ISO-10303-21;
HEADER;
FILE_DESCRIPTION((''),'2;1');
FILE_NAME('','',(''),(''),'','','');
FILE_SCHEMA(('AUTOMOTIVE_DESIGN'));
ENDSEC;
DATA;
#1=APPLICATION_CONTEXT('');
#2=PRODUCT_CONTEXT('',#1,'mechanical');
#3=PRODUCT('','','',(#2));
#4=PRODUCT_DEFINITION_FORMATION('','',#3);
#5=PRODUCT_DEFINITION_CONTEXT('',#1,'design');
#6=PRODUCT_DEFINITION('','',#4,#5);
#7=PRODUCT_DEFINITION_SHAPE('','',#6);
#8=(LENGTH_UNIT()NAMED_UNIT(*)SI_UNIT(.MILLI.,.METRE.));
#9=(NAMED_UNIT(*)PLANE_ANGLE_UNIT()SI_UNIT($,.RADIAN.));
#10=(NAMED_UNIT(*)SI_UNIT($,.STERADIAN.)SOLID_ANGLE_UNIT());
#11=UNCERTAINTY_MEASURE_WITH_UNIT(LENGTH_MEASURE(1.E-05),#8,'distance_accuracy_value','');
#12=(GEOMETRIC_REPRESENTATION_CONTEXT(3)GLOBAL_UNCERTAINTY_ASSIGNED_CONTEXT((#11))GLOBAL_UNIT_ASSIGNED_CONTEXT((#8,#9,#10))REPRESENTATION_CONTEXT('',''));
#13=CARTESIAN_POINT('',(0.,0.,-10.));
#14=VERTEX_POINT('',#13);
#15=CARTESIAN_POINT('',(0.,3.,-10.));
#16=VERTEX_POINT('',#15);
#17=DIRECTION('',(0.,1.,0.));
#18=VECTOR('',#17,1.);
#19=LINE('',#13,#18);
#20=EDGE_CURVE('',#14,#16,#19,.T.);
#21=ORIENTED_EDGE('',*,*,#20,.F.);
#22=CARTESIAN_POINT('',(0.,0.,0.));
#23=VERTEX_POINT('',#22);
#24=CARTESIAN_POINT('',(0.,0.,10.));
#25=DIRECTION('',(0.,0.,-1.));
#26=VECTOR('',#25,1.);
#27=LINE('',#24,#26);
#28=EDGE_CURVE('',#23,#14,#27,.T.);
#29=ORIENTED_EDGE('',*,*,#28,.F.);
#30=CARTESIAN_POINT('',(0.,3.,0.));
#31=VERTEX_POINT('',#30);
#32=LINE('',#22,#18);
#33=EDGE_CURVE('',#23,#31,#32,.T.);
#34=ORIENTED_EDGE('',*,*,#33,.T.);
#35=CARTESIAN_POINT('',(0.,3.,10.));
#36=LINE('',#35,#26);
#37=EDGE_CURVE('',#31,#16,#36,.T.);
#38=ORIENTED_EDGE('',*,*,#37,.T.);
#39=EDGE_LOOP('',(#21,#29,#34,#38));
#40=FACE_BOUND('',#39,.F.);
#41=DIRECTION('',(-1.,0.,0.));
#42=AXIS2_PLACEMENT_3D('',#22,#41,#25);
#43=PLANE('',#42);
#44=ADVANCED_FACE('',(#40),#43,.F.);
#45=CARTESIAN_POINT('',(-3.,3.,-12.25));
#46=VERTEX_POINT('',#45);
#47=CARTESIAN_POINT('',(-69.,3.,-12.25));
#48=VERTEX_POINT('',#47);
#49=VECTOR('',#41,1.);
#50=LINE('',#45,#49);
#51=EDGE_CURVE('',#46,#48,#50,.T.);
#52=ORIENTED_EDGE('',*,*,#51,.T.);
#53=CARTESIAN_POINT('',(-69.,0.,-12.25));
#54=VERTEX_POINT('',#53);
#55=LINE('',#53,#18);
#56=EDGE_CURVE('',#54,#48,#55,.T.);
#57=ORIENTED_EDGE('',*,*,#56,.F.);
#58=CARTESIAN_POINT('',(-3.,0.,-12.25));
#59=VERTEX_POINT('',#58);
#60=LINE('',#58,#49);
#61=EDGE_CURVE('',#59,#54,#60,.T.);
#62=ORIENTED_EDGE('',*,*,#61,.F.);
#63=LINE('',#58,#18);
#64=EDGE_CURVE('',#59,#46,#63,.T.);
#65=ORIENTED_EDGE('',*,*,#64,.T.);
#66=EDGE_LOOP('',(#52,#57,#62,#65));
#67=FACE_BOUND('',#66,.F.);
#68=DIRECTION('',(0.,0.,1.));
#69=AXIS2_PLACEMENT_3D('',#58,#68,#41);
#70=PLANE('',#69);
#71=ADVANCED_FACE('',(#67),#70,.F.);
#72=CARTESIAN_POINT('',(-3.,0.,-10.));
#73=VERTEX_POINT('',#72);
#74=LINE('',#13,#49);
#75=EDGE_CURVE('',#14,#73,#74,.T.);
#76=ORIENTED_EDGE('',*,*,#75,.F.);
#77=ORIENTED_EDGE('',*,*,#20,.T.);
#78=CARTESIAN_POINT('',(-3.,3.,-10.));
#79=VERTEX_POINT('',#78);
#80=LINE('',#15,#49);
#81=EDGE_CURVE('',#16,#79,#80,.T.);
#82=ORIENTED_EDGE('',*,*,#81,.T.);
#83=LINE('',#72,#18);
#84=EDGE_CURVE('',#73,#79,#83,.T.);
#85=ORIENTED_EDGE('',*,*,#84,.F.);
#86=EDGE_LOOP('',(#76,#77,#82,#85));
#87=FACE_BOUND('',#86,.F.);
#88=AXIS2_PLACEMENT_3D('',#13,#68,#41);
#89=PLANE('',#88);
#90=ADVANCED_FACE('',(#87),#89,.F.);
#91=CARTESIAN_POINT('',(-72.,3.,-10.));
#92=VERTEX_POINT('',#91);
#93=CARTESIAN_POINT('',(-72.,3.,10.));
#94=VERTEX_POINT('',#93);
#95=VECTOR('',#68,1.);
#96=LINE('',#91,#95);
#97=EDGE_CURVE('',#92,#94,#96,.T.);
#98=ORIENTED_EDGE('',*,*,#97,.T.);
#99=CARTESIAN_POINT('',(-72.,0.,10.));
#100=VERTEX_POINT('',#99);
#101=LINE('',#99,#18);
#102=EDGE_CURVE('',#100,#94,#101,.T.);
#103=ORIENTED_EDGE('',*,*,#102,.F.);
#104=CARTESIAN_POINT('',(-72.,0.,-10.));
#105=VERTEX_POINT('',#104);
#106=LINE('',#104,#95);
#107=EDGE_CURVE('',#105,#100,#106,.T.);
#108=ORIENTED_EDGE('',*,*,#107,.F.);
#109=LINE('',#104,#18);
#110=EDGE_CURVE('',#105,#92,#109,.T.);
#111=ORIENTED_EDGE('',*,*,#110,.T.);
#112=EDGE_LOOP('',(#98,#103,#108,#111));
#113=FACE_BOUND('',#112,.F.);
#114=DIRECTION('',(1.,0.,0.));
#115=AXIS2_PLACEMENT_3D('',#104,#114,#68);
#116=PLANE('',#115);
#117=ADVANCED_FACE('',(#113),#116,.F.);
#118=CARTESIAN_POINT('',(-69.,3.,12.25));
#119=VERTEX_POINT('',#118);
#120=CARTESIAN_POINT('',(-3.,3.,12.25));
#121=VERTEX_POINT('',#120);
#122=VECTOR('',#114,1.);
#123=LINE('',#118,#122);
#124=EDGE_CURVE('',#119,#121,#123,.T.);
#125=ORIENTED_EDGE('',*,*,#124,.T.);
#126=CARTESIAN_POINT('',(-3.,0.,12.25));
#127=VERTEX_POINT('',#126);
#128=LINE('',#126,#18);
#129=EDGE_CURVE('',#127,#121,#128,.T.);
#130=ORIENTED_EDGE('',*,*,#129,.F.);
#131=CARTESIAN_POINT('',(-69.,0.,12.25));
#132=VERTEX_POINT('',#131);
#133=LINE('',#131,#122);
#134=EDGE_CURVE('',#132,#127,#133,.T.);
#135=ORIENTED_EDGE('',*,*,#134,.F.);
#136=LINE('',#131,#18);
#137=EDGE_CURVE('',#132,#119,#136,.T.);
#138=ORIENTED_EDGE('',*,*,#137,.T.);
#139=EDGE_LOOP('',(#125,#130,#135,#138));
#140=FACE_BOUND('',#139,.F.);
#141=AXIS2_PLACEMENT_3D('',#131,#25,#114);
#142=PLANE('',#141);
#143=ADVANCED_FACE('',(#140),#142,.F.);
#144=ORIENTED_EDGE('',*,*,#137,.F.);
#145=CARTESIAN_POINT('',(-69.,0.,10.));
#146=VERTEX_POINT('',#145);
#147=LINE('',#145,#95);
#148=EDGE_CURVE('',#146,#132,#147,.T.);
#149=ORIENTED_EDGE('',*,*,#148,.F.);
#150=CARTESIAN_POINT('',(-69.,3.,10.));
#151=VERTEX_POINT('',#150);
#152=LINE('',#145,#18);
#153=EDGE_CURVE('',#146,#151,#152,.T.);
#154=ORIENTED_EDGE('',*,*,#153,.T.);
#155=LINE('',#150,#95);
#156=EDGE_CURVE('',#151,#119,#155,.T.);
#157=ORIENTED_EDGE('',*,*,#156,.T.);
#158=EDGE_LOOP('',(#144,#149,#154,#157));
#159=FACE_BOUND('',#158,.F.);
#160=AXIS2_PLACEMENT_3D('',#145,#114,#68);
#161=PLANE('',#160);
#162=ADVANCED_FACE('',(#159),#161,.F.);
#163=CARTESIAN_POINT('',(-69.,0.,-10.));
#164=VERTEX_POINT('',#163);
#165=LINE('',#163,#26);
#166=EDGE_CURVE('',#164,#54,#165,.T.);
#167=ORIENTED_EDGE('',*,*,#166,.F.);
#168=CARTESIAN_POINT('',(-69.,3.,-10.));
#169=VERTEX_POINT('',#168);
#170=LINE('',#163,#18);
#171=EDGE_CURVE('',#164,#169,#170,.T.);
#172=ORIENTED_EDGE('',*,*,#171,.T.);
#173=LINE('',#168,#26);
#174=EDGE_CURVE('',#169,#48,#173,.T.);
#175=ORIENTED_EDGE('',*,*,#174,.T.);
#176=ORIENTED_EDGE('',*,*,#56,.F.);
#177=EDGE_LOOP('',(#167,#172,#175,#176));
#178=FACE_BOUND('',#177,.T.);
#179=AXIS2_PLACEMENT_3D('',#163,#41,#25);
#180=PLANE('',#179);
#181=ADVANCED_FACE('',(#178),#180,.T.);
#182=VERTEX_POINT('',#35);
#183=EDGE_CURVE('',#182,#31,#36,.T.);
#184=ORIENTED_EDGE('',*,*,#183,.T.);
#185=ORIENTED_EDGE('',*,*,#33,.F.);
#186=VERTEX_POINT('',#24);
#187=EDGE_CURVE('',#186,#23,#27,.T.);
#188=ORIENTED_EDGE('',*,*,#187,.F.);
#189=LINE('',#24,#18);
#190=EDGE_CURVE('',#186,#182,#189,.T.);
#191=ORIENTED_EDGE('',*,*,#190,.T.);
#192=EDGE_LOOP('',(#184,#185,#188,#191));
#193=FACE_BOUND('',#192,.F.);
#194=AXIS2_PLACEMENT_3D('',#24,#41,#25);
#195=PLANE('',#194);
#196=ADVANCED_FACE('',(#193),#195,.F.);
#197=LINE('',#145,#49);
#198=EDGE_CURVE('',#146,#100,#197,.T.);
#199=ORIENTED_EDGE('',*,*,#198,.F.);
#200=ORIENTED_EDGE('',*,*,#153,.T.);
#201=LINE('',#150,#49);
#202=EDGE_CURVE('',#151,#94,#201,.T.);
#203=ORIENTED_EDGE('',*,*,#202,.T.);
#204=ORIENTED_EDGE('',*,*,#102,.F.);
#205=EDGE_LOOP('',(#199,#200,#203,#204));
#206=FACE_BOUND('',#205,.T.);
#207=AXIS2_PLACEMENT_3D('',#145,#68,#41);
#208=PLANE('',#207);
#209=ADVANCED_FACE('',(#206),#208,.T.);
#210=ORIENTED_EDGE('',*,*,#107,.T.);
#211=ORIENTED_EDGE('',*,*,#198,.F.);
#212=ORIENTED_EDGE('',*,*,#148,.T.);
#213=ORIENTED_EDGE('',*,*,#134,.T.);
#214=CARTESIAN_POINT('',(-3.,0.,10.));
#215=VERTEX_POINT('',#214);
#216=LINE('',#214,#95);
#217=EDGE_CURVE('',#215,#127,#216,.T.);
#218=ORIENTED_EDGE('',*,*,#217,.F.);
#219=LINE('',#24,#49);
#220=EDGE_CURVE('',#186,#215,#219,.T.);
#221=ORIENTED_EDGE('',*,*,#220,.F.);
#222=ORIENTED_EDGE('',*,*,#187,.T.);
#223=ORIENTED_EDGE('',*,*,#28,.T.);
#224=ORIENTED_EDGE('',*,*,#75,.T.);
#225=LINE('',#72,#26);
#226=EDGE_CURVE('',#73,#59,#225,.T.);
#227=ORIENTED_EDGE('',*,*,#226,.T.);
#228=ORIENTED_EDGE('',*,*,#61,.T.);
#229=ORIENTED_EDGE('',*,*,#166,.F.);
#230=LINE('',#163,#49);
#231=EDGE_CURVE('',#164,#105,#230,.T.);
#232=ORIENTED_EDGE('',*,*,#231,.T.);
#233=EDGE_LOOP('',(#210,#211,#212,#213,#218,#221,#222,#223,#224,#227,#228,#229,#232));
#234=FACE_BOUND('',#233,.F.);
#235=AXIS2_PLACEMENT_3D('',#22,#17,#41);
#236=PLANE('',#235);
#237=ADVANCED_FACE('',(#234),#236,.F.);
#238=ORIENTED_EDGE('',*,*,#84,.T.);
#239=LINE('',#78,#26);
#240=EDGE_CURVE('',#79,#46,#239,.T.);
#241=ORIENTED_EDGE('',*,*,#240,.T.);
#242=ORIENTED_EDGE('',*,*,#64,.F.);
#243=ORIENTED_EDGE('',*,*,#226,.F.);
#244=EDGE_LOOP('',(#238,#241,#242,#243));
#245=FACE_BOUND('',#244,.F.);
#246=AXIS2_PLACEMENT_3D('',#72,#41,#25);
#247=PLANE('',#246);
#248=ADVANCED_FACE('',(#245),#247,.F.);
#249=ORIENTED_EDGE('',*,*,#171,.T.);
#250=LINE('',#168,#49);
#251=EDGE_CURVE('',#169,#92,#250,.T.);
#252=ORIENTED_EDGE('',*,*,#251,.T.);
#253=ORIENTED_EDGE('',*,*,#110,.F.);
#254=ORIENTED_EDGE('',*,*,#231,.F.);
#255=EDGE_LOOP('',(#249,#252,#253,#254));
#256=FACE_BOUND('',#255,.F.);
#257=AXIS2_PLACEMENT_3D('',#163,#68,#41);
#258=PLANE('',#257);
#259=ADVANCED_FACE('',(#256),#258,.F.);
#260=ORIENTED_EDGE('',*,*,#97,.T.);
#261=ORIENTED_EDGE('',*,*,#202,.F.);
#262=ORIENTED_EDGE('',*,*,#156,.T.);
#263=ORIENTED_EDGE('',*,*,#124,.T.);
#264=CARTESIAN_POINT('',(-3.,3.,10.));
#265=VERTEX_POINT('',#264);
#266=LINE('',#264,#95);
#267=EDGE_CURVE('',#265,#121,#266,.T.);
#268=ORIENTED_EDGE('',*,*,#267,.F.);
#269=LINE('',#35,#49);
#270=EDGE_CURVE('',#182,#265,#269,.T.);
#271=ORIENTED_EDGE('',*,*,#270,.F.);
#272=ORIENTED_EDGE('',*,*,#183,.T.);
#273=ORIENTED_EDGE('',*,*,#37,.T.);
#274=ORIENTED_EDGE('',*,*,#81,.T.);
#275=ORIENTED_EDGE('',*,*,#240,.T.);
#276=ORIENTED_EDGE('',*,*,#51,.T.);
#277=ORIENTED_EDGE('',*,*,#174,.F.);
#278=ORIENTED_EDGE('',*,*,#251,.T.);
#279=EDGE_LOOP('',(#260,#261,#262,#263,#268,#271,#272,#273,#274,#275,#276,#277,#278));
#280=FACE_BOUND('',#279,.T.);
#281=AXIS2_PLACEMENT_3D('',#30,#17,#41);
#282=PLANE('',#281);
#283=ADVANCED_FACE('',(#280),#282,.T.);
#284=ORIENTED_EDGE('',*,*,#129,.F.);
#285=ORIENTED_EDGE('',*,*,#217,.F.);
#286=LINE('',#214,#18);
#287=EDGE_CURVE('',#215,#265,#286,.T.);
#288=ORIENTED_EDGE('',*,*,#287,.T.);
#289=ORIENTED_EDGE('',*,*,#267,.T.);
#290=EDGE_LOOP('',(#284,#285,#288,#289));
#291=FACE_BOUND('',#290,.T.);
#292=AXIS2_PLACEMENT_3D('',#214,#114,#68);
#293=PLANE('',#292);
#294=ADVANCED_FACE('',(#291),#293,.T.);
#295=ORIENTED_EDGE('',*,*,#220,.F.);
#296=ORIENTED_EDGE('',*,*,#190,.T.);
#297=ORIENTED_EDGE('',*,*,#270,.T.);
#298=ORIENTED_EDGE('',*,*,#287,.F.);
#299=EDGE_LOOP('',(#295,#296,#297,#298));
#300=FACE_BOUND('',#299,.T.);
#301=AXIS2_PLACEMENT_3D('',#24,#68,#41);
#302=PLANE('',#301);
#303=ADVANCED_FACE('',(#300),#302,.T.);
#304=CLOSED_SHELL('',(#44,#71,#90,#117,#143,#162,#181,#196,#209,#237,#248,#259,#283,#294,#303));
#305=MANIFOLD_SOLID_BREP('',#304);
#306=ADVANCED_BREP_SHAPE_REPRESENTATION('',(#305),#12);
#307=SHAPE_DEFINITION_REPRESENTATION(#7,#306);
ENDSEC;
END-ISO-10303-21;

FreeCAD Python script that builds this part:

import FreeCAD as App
import Part
import Sketcher

V = App.Vector

doc = App.newDocument("Part")
params = doc.addObject("Spreadsheet::Sheet", "Params")
for row, (alias, value) in enumerate([
    ("sketch1_width", "3 mm"),
    ("sketch1_width2", "66 mm"),
    ("sketch1_height", "20 mm"),
    ("sketch1_height2", "2.25 mm"),
    ("pad1_length", "3 mm"),
], start=1):
    params.set(f"A{row}", alias)
    params.set(f"B{row}", "=" + value)
    params.setAlias(f"B{row}", alias)

body = doc.addObject("PartDesign::Body", "Body")

sketch1 = body.newObject("Sketcher::SketchObject", "Sketch")
sketch1.AttachmentSupport = (doc.getObject("XZ_Plane"), [""])
sketch1.MapMode = "FlatFace"
sketch1.addGeometry([
    Part.LineSegment(V(-3, 10, 0), V(0, 10, 0)),
    Part.LineSegment(V(0, 10, 0), V(0, -10, 0)),
    Part.LineSegment(V(0, -10, 0), V(-3, -10, 0)),
    Part.LineSegment(V(-3, -10, 0), V(-3, -12.25, 0)),
    Part.LineSegment(V(-3, -12.25, 0), V(-69, -12.25, 0)),
    Part.LineSegment(V(-69, -12.25, 0), V(-69, -10, 0)),
    Part.LineSegment(V(-69, -10, 0), V(-72, -10, 0)),
    Part.LineSegment(V(-72, -10, 0), V(-72, 10, 0)),
    Part.LineSegment(V(-72, 10, 0), V(-69, 10, 0)),
    Part.LineSegment(V(-69, 10, 0), V(-69, 12.25, 0)),
    Part.LineSegment(V(-69, 12.25, 0), V(-3, 12.25, 0)),
    Part.LineSegment(V(-3, 12.25, 0), V(-3, 10, 0)),
], False)
sketch1.addConstraint([
    Sketcher.Constraint("Coincident", 0, 2, 1, 1),
    Sketcher.Constraint("Coincident", 1, 2, 2, 1),
    Sketcher.Constraint("Coincident", 2, 2, 3, 1),
    Sketcher.Constraint("Coincident", 3, 2, 4, 1),
    Sketcher.Constraint("Coincident", 4, 2, 5, 1),
    Sketcher.Constraint("Coincident", 5, 2, 6, 1),
    Sketcher.Constraint("Coincident", 6, 2, 7, 1),
    Sketcher.Constraint("Coincident", 7, 2, 8, 1),
    Sketcher.Constraint("Coincident", 8, 2, 9, 1),
    Sketcher.Constraint("Coincident", 9, 2, 10, 1),
    Sketcher.Constraint("Coincident", 10, 2, 11, 1),
    Sketcher.Constraint("Coincident", 11, 2, 0, 1),
    Sketcher.Constraint("Horizontal", 0),
    Sketcher.Constraint("Vertical", 1),
    Sketcher.Constraint("Horizontal", 2),
    Sketcher.Constraint("Vertical", 3),
    Sketcher.Constraint("Horizontal", 4),
    Sketcher.Constraint("Vertical", 5),
    Sketcher.Constraint("Horizontal", 6),
    Sketcher.Constraint("Vertical", 7),
    Sketcher.Constraint("Horizontal", 8),
    Sketcher.Constraint("Vertical", 9),
    Sketcher.Constraint("Horizontal", 10),
    Sketcher.Constraint("Vertical", 11),
    Sketcher.Constraint("Symmetric", 0, 2, 1, 2, -1, 1),
    Sketcher.Constraint("Symmetric", 5, 2, 8, 2, -1),
    Sketcher.Constraint("Symmetric", 3, 2, 10, 2, -1),
    Sketcher.Constraint("Horizontal", 2, 2, 5, 2),
    Sketcher.Constraint("Equal", 2, 6),
    Sketcher.Constraint("DistanceX", 0, 1, 0, 2, 3.0),
    Sketcher.Constraint("DistanceX", 4, 2, 4, 1, 66.0),
    Sketcher.Constraint("DistanceY", 1, 2, 1, 1, 20.0),
    Sketcher.Constraint("DistanceY", 3, 2, 3, 1, 2.25),
])
sketch1.setExpression("Constraints[29]", "Params.sketch1_width")
sketch1.setExpression("Constraints[30]", "Params.sketch1_width2")
sketch1.setExpression("Constraints[31]", "Params.sketch1_height")
sketch1.setExpression("Constraints[32]", "Params.sketch1_height2")
pad1 = body.newObject("PartDesign::Pad", "Pad")
pad1.Profile = sketch1
pad1.setExpression("Length", "Params.pad1_length")
pad1.Reversed = True

doc.recompute()
